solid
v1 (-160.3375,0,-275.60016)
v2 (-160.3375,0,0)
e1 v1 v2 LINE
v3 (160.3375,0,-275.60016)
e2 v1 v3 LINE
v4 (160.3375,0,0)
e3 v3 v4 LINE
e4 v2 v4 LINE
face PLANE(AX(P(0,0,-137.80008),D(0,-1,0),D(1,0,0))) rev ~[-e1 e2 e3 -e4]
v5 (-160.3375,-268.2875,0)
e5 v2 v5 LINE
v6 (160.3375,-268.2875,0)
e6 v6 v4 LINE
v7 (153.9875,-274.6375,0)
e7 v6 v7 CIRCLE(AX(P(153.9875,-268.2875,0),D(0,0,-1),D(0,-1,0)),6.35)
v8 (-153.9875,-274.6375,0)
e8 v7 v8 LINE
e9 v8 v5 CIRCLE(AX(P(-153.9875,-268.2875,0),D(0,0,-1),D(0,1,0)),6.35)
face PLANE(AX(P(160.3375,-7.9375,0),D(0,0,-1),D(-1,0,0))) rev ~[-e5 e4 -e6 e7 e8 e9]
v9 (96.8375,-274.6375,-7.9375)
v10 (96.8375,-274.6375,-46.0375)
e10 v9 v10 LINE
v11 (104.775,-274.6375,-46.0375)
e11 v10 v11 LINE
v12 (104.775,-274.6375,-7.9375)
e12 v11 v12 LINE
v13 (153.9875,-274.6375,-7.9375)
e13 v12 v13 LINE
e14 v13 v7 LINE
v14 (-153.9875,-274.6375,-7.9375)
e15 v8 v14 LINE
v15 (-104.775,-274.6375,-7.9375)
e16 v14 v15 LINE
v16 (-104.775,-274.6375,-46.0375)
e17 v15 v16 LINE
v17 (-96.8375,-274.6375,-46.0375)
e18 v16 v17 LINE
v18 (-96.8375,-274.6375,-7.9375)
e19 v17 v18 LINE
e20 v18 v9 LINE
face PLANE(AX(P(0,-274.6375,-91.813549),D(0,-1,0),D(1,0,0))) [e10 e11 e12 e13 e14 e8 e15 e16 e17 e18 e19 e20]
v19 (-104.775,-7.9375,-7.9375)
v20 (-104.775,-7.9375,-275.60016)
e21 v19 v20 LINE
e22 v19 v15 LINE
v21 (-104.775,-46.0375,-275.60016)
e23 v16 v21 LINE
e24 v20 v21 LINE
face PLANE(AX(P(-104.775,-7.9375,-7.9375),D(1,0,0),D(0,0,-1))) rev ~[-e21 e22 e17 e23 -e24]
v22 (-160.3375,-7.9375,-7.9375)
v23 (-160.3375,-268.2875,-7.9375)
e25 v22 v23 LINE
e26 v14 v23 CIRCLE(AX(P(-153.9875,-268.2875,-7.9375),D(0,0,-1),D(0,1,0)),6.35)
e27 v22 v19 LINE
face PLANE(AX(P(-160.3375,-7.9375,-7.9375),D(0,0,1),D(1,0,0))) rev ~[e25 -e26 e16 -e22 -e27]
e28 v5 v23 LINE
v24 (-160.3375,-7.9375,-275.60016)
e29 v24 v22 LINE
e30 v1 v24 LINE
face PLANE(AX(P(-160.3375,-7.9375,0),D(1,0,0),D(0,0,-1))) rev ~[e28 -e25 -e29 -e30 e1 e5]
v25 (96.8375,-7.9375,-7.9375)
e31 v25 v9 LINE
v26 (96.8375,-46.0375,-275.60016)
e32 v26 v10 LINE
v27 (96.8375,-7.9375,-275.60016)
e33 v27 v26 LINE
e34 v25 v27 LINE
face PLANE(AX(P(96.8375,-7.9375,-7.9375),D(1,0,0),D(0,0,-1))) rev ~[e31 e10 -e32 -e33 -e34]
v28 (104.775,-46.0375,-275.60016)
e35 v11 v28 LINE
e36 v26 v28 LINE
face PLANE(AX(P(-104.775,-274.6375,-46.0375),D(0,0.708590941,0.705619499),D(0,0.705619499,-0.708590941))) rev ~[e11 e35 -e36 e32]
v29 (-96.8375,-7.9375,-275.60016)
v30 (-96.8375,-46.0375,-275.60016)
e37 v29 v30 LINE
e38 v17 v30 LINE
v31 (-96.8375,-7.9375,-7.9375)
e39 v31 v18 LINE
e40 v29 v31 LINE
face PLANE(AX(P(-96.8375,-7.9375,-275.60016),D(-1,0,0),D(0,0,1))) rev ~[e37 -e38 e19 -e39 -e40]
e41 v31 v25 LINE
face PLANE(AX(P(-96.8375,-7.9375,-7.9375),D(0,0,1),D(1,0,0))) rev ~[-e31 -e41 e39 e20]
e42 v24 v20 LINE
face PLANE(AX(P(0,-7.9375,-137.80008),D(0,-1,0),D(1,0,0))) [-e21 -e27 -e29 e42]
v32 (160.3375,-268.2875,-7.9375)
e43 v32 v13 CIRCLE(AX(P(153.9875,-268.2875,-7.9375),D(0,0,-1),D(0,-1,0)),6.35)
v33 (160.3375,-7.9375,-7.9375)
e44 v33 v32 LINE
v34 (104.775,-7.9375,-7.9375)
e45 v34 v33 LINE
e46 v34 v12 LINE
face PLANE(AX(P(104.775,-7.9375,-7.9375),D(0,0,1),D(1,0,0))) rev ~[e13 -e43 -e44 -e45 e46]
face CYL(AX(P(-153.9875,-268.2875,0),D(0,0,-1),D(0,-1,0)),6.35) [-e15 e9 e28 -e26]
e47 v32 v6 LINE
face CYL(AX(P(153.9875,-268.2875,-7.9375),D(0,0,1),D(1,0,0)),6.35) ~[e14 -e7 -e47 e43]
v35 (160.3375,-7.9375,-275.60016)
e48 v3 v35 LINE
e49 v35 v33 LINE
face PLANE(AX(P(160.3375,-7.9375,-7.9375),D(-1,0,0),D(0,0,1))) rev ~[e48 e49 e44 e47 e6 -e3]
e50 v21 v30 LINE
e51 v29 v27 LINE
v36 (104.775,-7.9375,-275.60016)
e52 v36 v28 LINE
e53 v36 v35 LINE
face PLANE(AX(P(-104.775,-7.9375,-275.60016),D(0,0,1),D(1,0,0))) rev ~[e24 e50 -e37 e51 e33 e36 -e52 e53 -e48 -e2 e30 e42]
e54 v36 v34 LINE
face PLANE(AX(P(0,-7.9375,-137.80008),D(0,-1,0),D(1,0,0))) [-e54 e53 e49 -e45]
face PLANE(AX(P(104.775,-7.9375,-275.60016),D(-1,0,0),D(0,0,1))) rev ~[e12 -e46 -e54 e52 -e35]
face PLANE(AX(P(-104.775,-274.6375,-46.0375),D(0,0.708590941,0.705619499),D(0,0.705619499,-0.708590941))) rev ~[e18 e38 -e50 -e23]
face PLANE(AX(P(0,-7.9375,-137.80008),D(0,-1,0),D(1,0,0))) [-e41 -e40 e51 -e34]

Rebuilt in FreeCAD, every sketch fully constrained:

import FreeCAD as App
import Part
import Sketcher
from FreeCAD import Vector
Q = App.Units.Quantity


def edges_at(feature, points):
    """Names of the edges that pass closest to the given points."""
    edges = feature.Shape.Edges
    near = lambda p: min(range(len(edges)), key=lambda i: edges[i].distToShape(Part.Vertex(*p))[0])
    return sorted({f"Edge{near(p) + 1}" for p in points})

doc = App.newDocument("Part")
body = doc.addObject("PartDesign::Body", "Body")

# Sketch on XZ plane
sketch1 = body.newObject("Sketcher::SketchObject", "Sketch")
sketch1.AttachmentSupport = (doc.getObject("XZ_Plane"), [""])
sketch1.MapMode = "FlatFace"
sketch1.addGeometry(Part.LineSegment(Vector(-160, 0, 0), Vector(-160, -276, 0)), False)
sketch1.addGeometry(Part.LineSegment(Vector(-160, -276, 0), Vector(160, -276, 0)), False)
sketch1.addGeometry(Part.LineSegment(Vector(160, -276, 0), Vector(160, 0, 0)), False)
sketch1.addGeometry(Part.LineSegment(Vector(160, 0, 0), Vector(-160, 0, 0)), False)
sketch1.addConstraint(Sketcher.Constraint("Coincident", 0, 2, 1, 1))
sketch1.addConstraint(Sketcher.Constraint("Coincident", 1, 2, 2, 1))
sketch1.addConstraint(Sketcher.Constraint("Coincident", 2, 2, 3, 1))
sketch1.addConstraint(Sketcher.Constraint("Coincident", 3, 2, 0, 1))
sketch1.addConstraint(Sketcher.Constraint("Vertical", 0))
sketch1.addConstraint(Sketcher.Constraint("Horizontal", 1))
sketch1.addConstraint(Sketcher.Constraint("Vertical", 2))
sketch1.addConstraint(Sketcher.Constraint("Horizontal", 3))
sketch1.addConstraint(Sketcher.Constraint("Symmetric", 2, 2, 3, 2, -1, 1))
sketch1.addConstraint(Sketcher.Constraint("DistanceX", 1, 1, 1, 2, Q("12.625 in")))
sketch1.addConstraint(Sketcher.Constraint("DistanceY", 0, 2, 0, 1, Q("10.8504 in")))
pad1 = body.newObject("PartDesign::Pad", "Pad")
pad1.Profile = sketch1
pad1.Length = Q("0.3125 in")

# Sketch on XZ plane
sketch2 = body.newObject("Sketcher::SketchObject", "Sketch001")
sketch2.AttachmentSupport = (doc.getObject("XZ_Plane"), [""])
sketch2.MapMode = "FlatFace"
sketch2.AttachmentOffset = App.Placement(Vector(0, 0, 0.3125 * 25.4), App.Rotation())
sketch2.addGeometry(Part.LineSegment(Vector(160, 0, 0), Vector(-160, 0, 0)), False)
sketch2.addGeometry(Part.LineSegment(Vector(-160, 0, 0), Vector(-160, -8, 0)), False)
sketch2.addGeometry(Part.LineSegment(Vector(-160, -8, 0), Vector(-105, -8, 0)), False)
sketch2.addGeometry(Part.LineSegment(Vector(-105, -8, 0), Vector(-105, -276, 0)), False)
sketch2.addGeometry(Part.LineSegment(Vector(-105, -276, 0), Vector(-97, -276, 0)), False)
sketch2.addGeometry(Part.LineSegment(Vector(-97, -276, 0), Vector(-97, -8, 0)), False)
sketch2.addGeometry(Part.LineSegment(Vector(-97, -8, 0), Vector(97, -8, 0)), False)
sketch2.addGeometry(Part.LineSegment(Vector(97, -8, 0), Vector(97, -276, 0)), False)
sketch2.addGeometry(Part.LineSegment(Vector(97, -276, 0), Vector(105, -276, 0)), False)
sketch2.addGeometry(Part.LineSegment(Vector(105, -276, 0), Vector(105, -8, 0)), False)
sketch2.addGeometry(Part.LineSegment(Vector(105, -8, 0), Vector(160, -8, 0)), False)
sketch2.addGeometry(Part.LineSegment(Vector(160, -8, 0), Vector(160, 0, 0)), False)
sketch2.addConstraint(Sketcher.Constraint("Coincident", 0, 2, 1, 1))
sketch2.addConstraint(Sketcher.Constraint("Coincident", 1, 2, 2, 1))
sketch2.addConstraint(Sketcher.Constraint("Coincident", 2, 2, 3, 1))
sketch2.addConstraint(Sketcher.Constraint("Coincident", 3, 2, 4, 1))
sketch2.addConstraint(Sketcher.Constraint("Coincident", 4, 2, 5, 1))
sketch2.addConstraint(Sketcher.Constraint("Coincident", 5, 2, 6, 1))
sketch2.addConstraint(Sketcher.Constraint("Coincident", 6, 2, 7, 1))
sketch2.addConstraint(Sketcher.Constraint("Coincident", 7, 2, 8, 1))
sketch2.addConstraint(Sketcher.Constraint("Coincident", 8, 2, 9, 1))
sketch2.addConstraint(Sketcher.Constraint("Coincident", 9, 2, 10, 1))
sketch2.addConstraint(Sketcher.Constraint("Coincident", 10, 2, 11, 1))
sketch2.addConstraint(Sketcher.Constraint("Coincident", 11, 2, 0, 1))
sketch2.addConstraint(Sketcher.Constraint("Horizontal", 0))
sketch2.addConstraint(Sketcher.Constraint("Vertical", 1))
sketch2.addConstraint(Sketcher.Constraint("Horizontal", 2))
sketch2.addConstraint(Sketcher.Constraint("Vertical", 3))
sketch2.addConstraint(Sketcher.Constraint("Horizontal", 4))
sketch2.addConstraint(Sketcher.Constraint("Vertical", 5))
sketch2.addConstraint(Sketcher.Constraint("Horizontal", 6))
sketch2.addConstraint(Sketcher.Constraint("Vertical", 7))
sketch2.addConstraint(Sketcher.Constraint("Horizontal", 8))
sketch2.addConstraint(Sketcher.Constraint("Vertical", 9))
sketch2.addConstraint(Sketcher.Constraint("Horizontal", 10))
sketch2.addConstraint(Sketcher.Constraint("Vertical", 11))
sketch2.addConstraint(Sketcher.Constraint("Symmetric", 0, 2, 11, 2, -1, 1))
sketch2.addConstraint(Sketcher.Constraint("Symmetric", 4, 2, 7, 2, -2))
sketch2.addConstraint(Sketcher.Constraint("Symmetric", 2, 2, 9, 2, -2))
sketch2.addConstraint(Sketcher.Constraint("Horizontal", 2, 2, 5, 2))
sketch2.addConstraint(Sketcher.Constraint("Equal", 8, 1))
sketch2.addConstraint(Sketcher.Constraint("DistanceX", 1, 2, 4, 2, Q("2.5 in")))
sketch2.addConstraint(Sketcher.Constraint("DistanceX", 0, 2, 0, 1, Q("12.625 in")))
sketch2.addConstraint(Sketcher.Constraint("DistanceX", 2, 1, 2, 2, Q("2.1875 in")))
sketch2.addConstraint(Sketcher.Constraint("DistanceY", 3, 2, 3, 1, Q("10.5379 in")))
pad2 = body.newObject("PartDesign::Pad", "Pad001")
pad2.Profile = sketch2
pad2.Length = Q("10.5 in")

# Sketch on YZ plane
sketch3 = body.newObject("Sketcher::SketchObject", "Sketch002")
sketch3.AttachmentSupport = (doc.getObject("YZ_Plane"), [""])
sketch3.MapMode = "FlatFace"
sketch3.AttachmentOffset = App.Placement(Vector(0, 0, -4.125 * 25.4), App.Rotation())
sketch3.addGeometry(Part.LineSegment(Vector(-275, -46, 0), Vector(-46, -276, 0)), False)
sketch3.addGeometry(Part.LineSegment(Vector(-46, -276, 0), Vector(-275, -276, 0)), False)
sketch3.addGeometry(Part.LineSegment(Vector(-275, -276, 0), Vector(-275, -46, 0)), False)
sketch3.addConstraint(Sketcher.Constraint("Coincident", 0, 2, 1, 1))
sketch3.addConstraint(Sketcher.Constraint("Coincident", 1, 2, 2, 1))
sketch3.addConstraint(Sketcher.Constraint("Coincident", 2, 2, 0, 1))
sketch3.addConstraint(Sketcher.Constraint("Horizontal", 1))
sketch3.addConstraint(Sketcher.Constraint("Vertical", 2))
sketch3.addConstraint(Sketcher.Constraint("DistanceX", 1, 2, 1, 1, Q("9 in")))
sketch3.addConstraint(Sketcher.Constraint("DistanceY", 2, 1, 2, 2, Q("9.0379 in")))
sketch3.addConstraint(Sketcher.Constraint("DistanceX", 0, 2, -1, 1, Q("1.8125 in")))
sketch3.addConstraint(Sketcher.Constraint("DistanceY", 2, 2, -1, 1, Q("1.8125 in")))
pocket1 = body.newObject("PartDesign::Pocket", "Pocket")
pocket1.Profile = sketch3
pocket1.Type = "ThroughAll"
pocket1.Reversed = True
doc.recompute()

fillet = body.newObject("PartDesign::Fillet", "Fillet")
fillet.Base = (pocket1, edges_at(pocket1, [(-160.338, -274.637, -3.969), (160.338, -274.637, -3.969)]))
fillet.Radius = Q("0.25 in")

doc.recompute()
